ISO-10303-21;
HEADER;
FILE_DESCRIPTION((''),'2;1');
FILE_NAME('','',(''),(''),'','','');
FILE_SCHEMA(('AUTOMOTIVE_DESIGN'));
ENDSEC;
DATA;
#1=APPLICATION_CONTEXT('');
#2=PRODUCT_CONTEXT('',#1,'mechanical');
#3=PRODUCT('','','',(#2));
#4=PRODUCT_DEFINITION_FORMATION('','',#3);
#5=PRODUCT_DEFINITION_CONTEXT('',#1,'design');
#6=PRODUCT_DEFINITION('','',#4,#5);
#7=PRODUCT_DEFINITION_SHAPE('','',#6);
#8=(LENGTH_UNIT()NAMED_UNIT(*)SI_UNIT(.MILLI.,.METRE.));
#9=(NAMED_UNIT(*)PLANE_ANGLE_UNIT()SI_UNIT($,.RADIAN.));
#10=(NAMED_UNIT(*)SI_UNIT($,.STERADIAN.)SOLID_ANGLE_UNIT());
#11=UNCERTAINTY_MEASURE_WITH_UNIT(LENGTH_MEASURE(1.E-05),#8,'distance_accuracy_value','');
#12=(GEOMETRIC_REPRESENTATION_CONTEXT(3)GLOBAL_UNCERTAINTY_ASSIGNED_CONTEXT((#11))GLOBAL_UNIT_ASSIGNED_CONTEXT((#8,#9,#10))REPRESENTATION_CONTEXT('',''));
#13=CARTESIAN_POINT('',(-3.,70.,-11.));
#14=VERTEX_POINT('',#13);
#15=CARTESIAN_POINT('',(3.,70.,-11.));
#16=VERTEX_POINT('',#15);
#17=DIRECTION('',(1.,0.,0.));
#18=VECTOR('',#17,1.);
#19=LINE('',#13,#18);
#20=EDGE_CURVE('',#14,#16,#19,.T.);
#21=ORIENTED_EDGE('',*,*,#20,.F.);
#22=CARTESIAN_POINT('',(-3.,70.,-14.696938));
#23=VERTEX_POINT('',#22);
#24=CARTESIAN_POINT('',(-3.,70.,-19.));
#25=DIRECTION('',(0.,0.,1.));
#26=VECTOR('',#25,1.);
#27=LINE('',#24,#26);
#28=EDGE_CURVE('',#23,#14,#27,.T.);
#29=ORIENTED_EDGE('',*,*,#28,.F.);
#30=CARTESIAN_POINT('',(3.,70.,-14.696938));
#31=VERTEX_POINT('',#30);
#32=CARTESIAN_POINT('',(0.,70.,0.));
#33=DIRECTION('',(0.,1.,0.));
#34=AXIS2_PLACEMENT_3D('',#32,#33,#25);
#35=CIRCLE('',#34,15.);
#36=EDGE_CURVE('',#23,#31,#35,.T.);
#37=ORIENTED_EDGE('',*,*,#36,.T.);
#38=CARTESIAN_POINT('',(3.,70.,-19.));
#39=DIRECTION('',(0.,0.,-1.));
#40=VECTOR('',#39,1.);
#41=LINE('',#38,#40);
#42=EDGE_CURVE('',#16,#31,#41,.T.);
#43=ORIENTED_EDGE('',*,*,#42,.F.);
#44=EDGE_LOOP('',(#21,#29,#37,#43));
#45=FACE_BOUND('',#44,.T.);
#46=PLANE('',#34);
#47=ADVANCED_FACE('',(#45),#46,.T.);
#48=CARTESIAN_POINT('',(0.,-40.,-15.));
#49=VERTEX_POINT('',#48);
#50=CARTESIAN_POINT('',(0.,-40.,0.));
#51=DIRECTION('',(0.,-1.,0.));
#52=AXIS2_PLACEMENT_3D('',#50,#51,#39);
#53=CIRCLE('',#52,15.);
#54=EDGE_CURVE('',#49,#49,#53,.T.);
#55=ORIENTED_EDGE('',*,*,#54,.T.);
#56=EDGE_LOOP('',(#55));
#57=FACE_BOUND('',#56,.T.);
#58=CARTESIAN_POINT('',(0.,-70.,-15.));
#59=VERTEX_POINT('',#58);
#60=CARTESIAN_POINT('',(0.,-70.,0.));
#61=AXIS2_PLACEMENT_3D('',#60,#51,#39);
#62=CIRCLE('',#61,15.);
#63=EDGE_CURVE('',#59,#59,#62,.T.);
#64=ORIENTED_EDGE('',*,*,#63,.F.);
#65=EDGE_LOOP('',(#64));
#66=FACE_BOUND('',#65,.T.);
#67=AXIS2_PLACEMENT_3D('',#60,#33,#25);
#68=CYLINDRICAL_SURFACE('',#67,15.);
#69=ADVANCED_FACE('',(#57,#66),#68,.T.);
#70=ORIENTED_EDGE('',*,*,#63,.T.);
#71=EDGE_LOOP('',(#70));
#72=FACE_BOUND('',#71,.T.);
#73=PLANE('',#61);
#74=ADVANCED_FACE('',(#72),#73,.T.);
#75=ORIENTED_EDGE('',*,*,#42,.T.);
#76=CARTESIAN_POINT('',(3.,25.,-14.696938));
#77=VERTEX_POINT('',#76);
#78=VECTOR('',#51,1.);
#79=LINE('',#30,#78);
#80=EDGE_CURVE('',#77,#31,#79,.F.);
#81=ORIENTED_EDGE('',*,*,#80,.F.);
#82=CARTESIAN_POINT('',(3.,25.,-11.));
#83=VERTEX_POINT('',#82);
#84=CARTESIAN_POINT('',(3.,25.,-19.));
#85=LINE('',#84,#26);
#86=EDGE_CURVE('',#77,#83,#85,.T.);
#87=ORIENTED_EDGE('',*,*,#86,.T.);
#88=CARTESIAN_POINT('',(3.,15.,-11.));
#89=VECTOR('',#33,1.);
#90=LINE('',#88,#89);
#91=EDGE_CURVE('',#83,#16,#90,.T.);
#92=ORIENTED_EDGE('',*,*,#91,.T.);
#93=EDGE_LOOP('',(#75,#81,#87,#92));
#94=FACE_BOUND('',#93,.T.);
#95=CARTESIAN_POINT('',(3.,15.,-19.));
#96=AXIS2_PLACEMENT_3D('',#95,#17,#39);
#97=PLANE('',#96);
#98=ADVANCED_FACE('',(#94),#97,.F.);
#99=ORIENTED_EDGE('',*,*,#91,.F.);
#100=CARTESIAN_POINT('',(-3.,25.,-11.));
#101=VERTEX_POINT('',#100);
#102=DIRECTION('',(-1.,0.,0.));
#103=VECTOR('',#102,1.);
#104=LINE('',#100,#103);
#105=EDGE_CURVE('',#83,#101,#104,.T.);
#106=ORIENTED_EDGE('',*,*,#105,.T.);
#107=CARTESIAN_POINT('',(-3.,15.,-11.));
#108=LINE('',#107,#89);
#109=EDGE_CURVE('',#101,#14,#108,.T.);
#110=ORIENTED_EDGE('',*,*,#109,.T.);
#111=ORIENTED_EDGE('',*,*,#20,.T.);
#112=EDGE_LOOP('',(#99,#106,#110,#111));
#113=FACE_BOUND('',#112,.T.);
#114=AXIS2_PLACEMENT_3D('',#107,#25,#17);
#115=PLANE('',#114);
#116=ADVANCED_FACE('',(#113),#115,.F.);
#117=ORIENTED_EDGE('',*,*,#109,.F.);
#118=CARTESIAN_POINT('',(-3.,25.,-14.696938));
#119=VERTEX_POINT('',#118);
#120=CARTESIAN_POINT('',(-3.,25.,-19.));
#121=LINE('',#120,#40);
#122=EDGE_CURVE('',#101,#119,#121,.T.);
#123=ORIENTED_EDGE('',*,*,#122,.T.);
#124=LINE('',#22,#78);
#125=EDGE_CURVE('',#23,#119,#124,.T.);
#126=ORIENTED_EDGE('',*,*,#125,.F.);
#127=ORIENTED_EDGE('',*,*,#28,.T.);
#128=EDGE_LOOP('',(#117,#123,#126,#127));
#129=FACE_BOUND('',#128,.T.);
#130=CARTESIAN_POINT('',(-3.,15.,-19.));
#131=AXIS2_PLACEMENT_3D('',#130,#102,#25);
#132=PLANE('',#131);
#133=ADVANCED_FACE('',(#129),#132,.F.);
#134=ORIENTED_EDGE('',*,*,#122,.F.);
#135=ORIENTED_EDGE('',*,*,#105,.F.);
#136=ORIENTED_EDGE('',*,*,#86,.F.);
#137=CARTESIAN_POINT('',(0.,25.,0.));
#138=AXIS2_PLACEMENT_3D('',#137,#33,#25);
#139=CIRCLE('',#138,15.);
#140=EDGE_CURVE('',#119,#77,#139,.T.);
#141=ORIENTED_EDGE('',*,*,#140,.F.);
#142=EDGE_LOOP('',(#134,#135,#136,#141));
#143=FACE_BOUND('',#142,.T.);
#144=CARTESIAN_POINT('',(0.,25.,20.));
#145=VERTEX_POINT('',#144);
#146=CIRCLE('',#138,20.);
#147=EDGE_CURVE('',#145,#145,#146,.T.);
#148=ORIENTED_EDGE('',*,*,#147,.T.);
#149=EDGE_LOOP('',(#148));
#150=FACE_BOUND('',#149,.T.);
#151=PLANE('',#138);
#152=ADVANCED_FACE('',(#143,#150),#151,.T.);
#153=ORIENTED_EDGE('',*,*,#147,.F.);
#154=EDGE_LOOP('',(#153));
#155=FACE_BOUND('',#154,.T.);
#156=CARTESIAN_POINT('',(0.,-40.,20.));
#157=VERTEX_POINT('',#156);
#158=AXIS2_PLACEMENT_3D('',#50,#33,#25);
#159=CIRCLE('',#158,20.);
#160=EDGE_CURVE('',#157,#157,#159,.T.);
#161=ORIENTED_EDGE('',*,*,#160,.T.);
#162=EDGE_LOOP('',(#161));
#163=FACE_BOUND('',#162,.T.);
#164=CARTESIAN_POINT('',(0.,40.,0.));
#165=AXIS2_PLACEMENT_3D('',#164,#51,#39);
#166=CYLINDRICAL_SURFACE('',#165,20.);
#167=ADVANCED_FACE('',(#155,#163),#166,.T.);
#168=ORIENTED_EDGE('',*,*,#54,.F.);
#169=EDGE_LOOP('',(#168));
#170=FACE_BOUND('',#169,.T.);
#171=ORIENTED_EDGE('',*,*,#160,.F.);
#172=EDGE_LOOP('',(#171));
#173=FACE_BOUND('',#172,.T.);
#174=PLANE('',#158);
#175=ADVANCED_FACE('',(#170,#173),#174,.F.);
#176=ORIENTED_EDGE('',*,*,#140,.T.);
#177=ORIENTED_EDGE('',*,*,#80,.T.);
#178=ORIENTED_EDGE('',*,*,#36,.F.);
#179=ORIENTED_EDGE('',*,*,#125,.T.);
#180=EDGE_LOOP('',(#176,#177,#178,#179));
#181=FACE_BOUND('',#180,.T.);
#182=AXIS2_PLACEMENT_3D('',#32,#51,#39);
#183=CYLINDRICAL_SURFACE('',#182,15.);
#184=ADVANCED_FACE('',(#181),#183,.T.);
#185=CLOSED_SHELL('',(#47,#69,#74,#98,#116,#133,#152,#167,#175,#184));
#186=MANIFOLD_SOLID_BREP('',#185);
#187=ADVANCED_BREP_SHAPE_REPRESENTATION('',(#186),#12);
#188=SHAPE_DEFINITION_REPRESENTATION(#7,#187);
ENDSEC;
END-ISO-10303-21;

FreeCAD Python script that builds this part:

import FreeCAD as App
import Part
import Sketcher
Q = App.Units.Quantity


def add_polygon(sketch, points):
    """Adds a closed chain of lines whose ends are joined by coincident constraints."""
    first, n = sketch.GeometryCount, len(points)
    for a, b in zip(points, points[1:] + points[:1]):
        sketch.addGeometry(Part.LineSegment(App.Vector(*a, 0), App.Vector(*b, 0)), False)
    for i in range(n):
        sketch.addConstraint(Sketcher.Constraint("Coincident", first + i, 2, first + (i + 1) % n, 1))

doc = App.newDocument("Part")
body = doc.addObject("PartDesign::Body", "Body")

sketch1 = doc.addObject("Sketcher::SketchObject", "Sketch")
body.addObject(sketch1)
sketch1.AttachmentSupport = (doc.XZ_Plane, [""])
sketch1.MapMode = "FlatFace"
sketch1.addGeometry(Part.Circle(App.Vector(0, 0, 0), App.Vector(0, 0, 1), 20), False)
sketch1.addConstraint([
    Sketcher.Constraint("Coincident", 0, 3, -1, 1),
    Sketcher.Constraint("Diameter", 0, Q("40 mm")),
])
pad1 = doc.addObject("PartDesign::Pad", "Pad")
body.addObject(pad1)
pad1.Profile = sketch1
pad1.Length = 80
pad1.Midplane = True

sketch2 = doc.addObject("Sketcher::SketchObject", "Sketch001")
body.addObject(sketch2)
sketch2.AttachmentSupport = (doc.XZ_Plane, [""])
sketch2.MapMode = "FlatFace"
sketch2.AttachmentOffset = App.Placement(App.Vector(0, 0, -40), App.Rotation())
sketch2.addGeometry(Part.Circle(App.Vector(0, 0, 0), App.Vector(0, 0, 1), 15), False)
sketch2.addConstraint([
    Sketcher.Constraint("Coincident", 0, 3, -1, 1),
    Sketcher.Constraint("Diameter", 0, Q("30 mm")),
])
pad2 = doc.addObject("PartDesign::Pad", "Pad001")
body.addObject(pad2)
pad2.Profile = sketch2
pad2.Length = 30
pad2.Reversed = True

sketch3 = doc.addObject("Sketcher::SketchObject", "Sketch002")
body.addObject(sketch3)
sketch3.AttachmentSupport = (doc.XZ_Plane, [""])
sketch3.MapMode = "FlatFace"
sketch3.AttachmentOffset = App.Placement(App.Vector(0, 0, 40), App.Rotation())
sketch3.addGeometry(Part.Circle(App.Vector(0, 0, 0), App.Vector(0, 0, 1), 15), False)
sketch3.addConstraint([
    Sketcher.Constraint("Coincident", 0, 3, -1, 1),
    Sketcher.Constraint("Diameter", 0, Q("30 mm")),
])
pad3 = doc.addObject("PartDesign::Pad", "Pad002")
body.addObject(pad3)
pad3.Profile = sketch3
pad3.Length = 30

sketch4 = doc.addObject("Sketcher::SketchObject", "Sketch003")
body.addObject(sketch4)
sketch4.AttachmentSupport = (doc.XZ_Plane, [""])
sketch4.MapMode = "FlatFace"
sketch4.AttachmentOffset = App.Placement(App.Vector(0, 0, -40), App.Rotation())
sketch4.addGeometry([
    Part.Circle(App.Vector(0, 0, 0), App.Vector(0, 0, 1), 20),
    Part.Circle(App.Vector(0, 0, 0), App.Vector(0, 0, 1), 15),
], False)
sketch4.addConstraint([
    Sketcher.Constraint("Coincident", 0, 3, -1, 1),
    Sketcher.Constraint("Coincident", 1, 3, -1, 1),
    Sketcher.Constraint("Diameter", 0, Q("40 mm")),
    Sketcher.Constraint("Diameter", 1, Q("30 mm")),
])
pocket1 = doc.addObject("PartDesign::Pocket", "Pocket")
body.addObject(pocket1)
pocket1.Profile = sketch4
pocket1.Length = 15
pocket1.Reversed = True

sketch5 = doc.addObject("Sketcher::SketchObject", "Sketch004")
body.addObject(sketch5)
sketch5.AttachmentSupport = (doc.XZ_Plane, [""])
sketch5.MapMode = "FlatFace"
sketch5.AttachmentOffset = App.Placement(App.Vector(0, 0, -70), App.Rotation())
add_polygon(sketch5, [(-3, -19), (-3, -11), (3, -11), (3, -19)])
sketch5.addConstraint([
    Sketcher.Constraint("Vertical", 0),
    Sketcher.Constraint("Horizontal", 1),
    Sketcher.Constraint("Vertical", 2),
    Sketcher.Constraint("Horizontal", 3),
    Sketcher.Constraint("DistanceX", 1, 1, 1, 2, Q("6 mm")),
    Sketcher.Constraint("DistanceY", 0, 1, 0, 2, Q("8 mm")),
    Sketcher.Constraint("DistanceX", 0, 2, -1, 1, Q("3 mm")),
    Sketcher.Constraint("DistanceY", 0, 2, -1, 1, Q("11 mm")),
])
pocket2 = doc.addObject("PartDesign::Pocket", "Pocket001")
body.addObject(pocket2)
pocket2.Profile = sketch5
pocket2.Length = 45
pocket2.Reversed = True

doc.recompute()
